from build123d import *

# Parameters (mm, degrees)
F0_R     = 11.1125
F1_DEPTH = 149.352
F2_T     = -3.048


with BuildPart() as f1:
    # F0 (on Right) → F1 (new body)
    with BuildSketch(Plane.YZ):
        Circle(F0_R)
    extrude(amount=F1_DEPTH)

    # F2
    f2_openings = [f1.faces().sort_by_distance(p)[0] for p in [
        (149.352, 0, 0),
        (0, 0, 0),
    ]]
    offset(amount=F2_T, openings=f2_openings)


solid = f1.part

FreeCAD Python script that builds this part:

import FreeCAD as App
import Part
import Sketcher

V = App.Vector
Q = App.Units.Quantity


def faces_at(feature, points):
    """Names of the faces that lie closest to the given points."""
    faces = feature.Shape.Faces
    near = lambda p: min(range(len(faces)), key=lambda i: faces[i].distToShape(Part.Vertex(*p))[0])
    return sorted({f"Face{near(p) + 1}" for p in points})

doc = App.newDocument("Part")
body = doc.addObject("PartDesign::Body", "Body")

# Sketch on YZ plane
sketch1 = doc.addObject("Sketcher::SketchObject", "Sketch")
body.addObject(sketch1)
sketch1.AttachmentSupport = (doc.YZ_Plane, [""])
sketch1.MapMode = "FlatFace"
sketch1.addGeometry(Part.Circle(V(0, 0, 0), V(0, 0, 1), 11), False)
sketch1.addConstraint([
    Sketcher.Constraint("Coincident", 0, 3, -1, 1),
    Sketcher.Constraint("Diameter", 0, Q("0.875 in")),
])
pad1 = doc.addObject("PartDesign::Pad", "Pad")
body.addObject(pad1)
pad1.Profile = sketch1
pad1.Length = Q("5.88 in")
doc.recompute()

thickness = doc.addObject("PartDesign::Thickness", "Thickness")
body.addObject(thickness)
thickness.Base = (pad1, faces_at(pad1, [(149.352, 0, 0), (0, 0, 0)]))
thickness.Value = Q("0.12 in")
thickness.Reversed = True
thickness.Join = "Arc"

doc.recompute()
